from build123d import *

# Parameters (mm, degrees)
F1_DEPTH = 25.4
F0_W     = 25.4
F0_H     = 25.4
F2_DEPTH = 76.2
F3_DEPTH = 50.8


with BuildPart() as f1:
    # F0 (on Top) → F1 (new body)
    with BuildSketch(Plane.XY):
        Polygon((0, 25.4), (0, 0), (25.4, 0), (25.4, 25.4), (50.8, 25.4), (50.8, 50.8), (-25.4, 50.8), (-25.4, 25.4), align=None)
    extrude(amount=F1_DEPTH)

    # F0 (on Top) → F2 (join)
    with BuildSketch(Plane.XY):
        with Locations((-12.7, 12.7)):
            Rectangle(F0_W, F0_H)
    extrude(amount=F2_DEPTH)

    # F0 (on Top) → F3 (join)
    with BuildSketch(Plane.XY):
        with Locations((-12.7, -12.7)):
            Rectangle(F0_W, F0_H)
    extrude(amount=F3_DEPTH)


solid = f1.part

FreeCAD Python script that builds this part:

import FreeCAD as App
import Part
import Sketcher
from FreeCAD import Vector
Q = App.Units.Quantity

doc = App.newDocument("Part")
params = doc.addObject("Spreadsheet::Sheet", "Params")
for row, (alias, value) in enumerate([
    ("sketch1_width", "1 in"),
    ("pad1_length", "1 in"),
    ("sketch2_width", "1 in"),
    ("pad2_length", "3 in"),
    ("sketch3_width", "1 in"),
    ("pad3_length", "2 in"),
], start=1):
    params.set(f"A{row}", alias)
    params.set(f"B{row}", "=" + value)
    params.setAlias(f"B{row}", alias)

body = doc.addObject("PartDesign::Body", "Body")

# Sketch on XY plane
sketch1 = body.newObject("Sketcher::SketchObject", "Sketch")
sketch1.AttachmentSupport = (doc.getObject("XY_Plane"), [""])
sketch1.MapMode = "FlatFace"
sketch1.addGeometry([
    Part.LineSegment(Vector(0, 25, 0), Vector(0, 0, 0)),  # 0
    Part.LineSegment(Vector(0, 0, 0), Vector(25, 0, 0)),  # 1
    Part.LineSegment(Vector(25, 0, 0), Vector(25, 25, 0)),  # 2
    Part.LineSegment(Vector(25, 25, 0), Vector(51, 25, 0)),  # 3
    Part.LineSegment(Vector(51, 25, 0), Vector(51, 51, 0)),  # 4
    Part.LineSegment(Vector(51, 51, 0), Vector(-25, 51, 0)),  # 5
    Part.LineSegment(Vector(-25, 51, 0), Vector(-25, 25, 0)),  # 6
    Part.LineSegment(Vector(-25, 25, 0), Vector(0, 25, 0)),  # 7
], False)
sketch1.addConstraint([
    Sketcher.Constraint("Coincident", 0, 2, 1, 1),
    Sketcher.Constraint("Coincident", 1, 2, 2, 1),
    Sketcher.Constraint("Coincident", 2, 2, 3, 1),
    Sketcher.Constraint("Coincident", 3, 2, 4, 1),
    Sketcher.Constraint("Coincident", 4, 2, 5, 1),
    Sketcher.Constraint("Coincident", 5, 2, 6, 1),
    Sketcher.Constraint("Coincident", 6, 2, 7, 1),
    Sketcher.Constraint("Coincident", 7, 2, 0, 1),
    Sketcher.Constraint("Vertical", 0),
    Sketcher.Constraint("Horizontal", 1),
    Sketcher.Constraint("Vertical", 2),
    Sketcher.Constraint("Horizontal", 3),
    Sketcher.Constraint("Vertical", 4),
    Sketcher.Constraint("Horizontal", 5),
    Sketcher.Constraint("Vertical", 6),
    Sketcher.Constraint("Horizontal", 7),
    Sketcher.Constraint("Coincident", 0, 2, -1, 1),
    Sketcher.Constraint("Symmetric", 2, 2, 6, 2, -2),
    Sketcher.Constraint("Equal", 1, 3),
    Sketcher.Constraint("Equal", 7, 0),
    Sketcher.Constraint("Equal", 2, 4),
    Sketcher.Constraint("DistanceX", 1, 1, 1, 2, Q("1 in")),
])
sketch1.setExpression("Constraints[21]", "Params.sketch1_width")
pad1 = body.newObject("PartDesign::Pad", "Pad")
pad1.Profile = sketch1
pad1.setExpression("Length", "Params.pad1_length")

# Sketch on XY plane
sketch2 = body.newObject("Sketcher::SketchObject", "Sketch001")
sketch2.AttachmentSupport = (doc.getObject("XY_Plane"), [""])
sketch2.MapMode = "FlatFace"
sketch2.addGeometry([
    Part.LineSegment(Vector(-25, 25, 0), Vector(-25, 0, 0)),
    Part.LineSegment(Vector(-25, 0, 0), Vector(0, 0, 0)),
    Part.LineSegment(Vector(0, 0, 0), Vector(0, 25, 0)),
    Part.LineSegment(Vector(0, 25, 0), Vector(-25, 25, 0)),
], False)
sketch2.addConstraint([
    Sketcher.Constraint("Coincident", 0, 2, 1, 1),
    Sketcher.Constraint("Coincident", 1, 2, 2, 1),
    Sketcher.Constraint("Coincident", 2, 2, 3, 1),
    Sketcher.Constraint("Coincident", 3, 2, 0, 1),
    Sketcher.Constraint("Vertical", 0),
    Sketcher.Constraint("Horizontal", 1),
    Sketcher.Constraint("Vertical", 2),
    Sketcher.Constraint("Horizontal", 3),
    Sketcher.Constraint("Coincident", 1, 2, -1, 1),
    Sketcher.Constraint("Equal", 3, 0),
    Sketcher.Constraint("DistanceX", 1, 1, 1, 2, Q("1 in")),
])
sketch2.setExpression("Constraints[10]", "Params.sketch2_width")
pad2 = body.newObject("PartDesign::Pad", "Pad001")
pad2.Profile = sketch2
pad2.setExpression("Length", "Params.pad2_length")

# Sketch on XY plane
sketch3 = body.newObject("Sketcher::SketchObject", "Sketch002")
sketch3.AttachmentSupport = (doc.getObject("XY_Plane"), [""])
sketch3.MapMode = "FlatFace"
sketch3.addGeometry([
    Part.LineSegment(Vector(-25, 0, 0), Vector(-25, -25, 0)),
    Part.LineSegment(Vector(-25, -25, 0), Vector(0, -25, 0)),
    Part.LineSegment(Vector(0, -25, 0), Vector(0, 0, 0)),
    Part.LineSegment(Vector(0, 0, 0), Vector(-25, 0, 0)),
], False)
sketch3.addConstraint([
    Sketcher.Constraint("Coincident", 0, 2, 1, 1),
    Sketcher.Constraint("Coincident", 1, 2, 2, 1),
    Sketcher.Constraint("Coincident", 2, 2, 3, 1),
    Sketcher.Constraint("Coincident", 3, 2, 0, 1),
    Sketcher.Constraint("Vertical", 0),
    Sketcher.Constraint("Horizontal", 1),
    Sketcher.Constraint("Vertical", 2),
    Sketcher.Constraint("Horizontal", 3),
    Sketcher.Constraint("Coincident", 2, 2, -1, 1),
    Sketcher.Constraint("Equal", 3, 0),
    Sketcher.Constraint("DistanceX", 1, 1, 1, 2, Q("1 in")),
])
sketch3.setExpression("Constraints[10]", "Params.sketch3_width")
pad3 = body.newObject("PartDesign::Pad", "Pad002")
pad3.Profile = sketch3
pad3.setExpression("Length", "Params.pad3_length")

doc.recompute()
